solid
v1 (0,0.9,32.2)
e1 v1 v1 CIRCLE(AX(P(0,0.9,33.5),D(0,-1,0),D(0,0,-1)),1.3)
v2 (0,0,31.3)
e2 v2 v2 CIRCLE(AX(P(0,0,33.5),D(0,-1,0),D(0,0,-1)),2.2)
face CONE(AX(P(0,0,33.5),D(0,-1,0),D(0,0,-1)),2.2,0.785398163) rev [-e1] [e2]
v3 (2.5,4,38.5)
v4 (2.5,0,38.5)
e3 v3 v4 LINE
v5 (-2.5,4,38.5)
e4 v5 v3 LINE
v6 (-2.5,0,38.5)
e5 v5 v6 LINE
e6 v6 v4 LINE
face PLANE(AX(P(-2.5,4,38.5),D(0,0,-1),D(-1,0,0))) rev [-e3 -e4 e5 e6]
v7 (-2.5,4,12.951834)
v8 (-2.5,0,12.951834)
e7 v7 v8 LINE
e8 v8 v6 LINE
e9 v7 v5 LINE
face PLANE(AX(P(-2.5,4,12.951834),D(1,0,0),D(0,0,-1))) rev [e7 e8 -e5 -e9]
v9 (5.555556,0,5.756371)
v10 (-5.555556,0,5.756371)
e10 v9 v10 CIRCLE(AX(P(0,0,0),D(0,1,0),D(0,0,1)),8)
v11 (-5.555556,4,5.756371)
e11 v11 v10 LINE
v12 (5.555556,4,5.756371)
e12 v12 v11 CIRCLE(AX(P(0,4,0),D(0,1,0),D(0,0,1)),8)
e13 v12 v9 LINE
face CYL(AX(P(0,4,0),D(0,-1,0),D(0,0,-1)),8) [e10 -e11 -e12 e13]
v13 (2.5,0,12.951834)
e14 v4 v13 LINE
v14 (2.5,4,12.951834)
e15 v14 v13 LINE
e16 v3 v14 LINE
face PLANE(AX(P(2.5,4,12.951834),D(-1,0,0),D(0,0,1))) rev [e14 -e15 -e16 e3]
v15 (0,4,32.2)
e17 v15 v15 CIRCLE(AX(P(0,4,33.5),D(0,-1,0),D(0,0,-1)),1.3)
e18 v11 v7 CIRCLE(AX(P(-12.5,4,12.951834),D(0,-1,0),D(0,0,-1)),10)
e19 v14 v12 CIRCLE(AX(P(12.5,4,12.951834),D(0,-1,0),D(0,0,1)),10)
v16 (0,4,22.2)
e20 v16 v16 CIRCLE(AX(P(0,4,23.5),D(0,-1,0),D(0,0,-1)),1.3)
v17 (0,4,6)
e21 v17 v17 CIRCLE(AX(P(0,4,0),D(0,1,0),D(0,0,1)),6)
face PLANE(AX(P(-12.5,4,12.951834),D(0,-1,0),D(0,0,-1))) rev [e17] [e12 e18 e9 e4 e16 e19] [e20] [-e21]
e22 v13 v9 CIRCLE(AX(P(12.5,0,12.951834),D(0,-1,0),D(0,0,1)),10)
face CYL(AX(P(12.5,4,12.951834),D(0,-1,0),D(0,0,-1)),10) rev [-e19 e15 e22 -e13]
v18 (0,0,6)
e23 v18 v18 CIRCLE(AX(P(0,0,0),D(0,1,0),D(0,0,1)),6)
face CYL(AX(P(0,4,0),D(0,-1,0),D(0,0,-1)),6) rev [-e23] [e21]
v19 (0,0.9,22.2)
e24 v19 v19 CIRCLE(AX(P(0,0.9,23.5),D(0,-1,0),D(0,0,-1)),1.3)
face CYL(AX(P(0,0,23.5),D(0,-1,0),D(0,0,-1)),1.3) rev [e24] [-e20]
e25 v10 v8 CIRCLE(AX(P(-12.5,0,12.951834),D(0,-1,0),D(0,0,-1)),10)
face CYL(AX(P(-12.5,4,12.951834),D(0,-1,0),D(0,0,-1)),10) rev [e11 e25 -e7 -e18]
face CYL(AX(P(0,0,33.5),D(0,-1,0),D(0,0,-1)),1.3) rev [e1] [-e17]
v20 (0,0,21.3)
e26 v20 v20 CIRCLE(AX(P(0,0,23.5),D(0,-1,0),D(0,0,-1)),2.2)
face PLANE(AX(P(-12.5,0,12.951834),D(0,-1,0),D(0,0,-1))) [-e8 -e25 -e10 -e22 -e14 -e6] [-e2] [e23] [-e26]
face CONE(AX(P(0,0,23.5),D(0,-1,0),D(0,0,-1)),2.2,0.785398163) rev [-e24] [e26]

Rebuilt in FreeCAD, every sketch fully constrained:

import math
import FreeCAD as App
import Part
import Sketcher

V = App.Vector

doc = App.newDocument("Part")
body = doc.addObject("PartDesign::Body", "Body")

# Sketch on XZ plane
sketch1 = body.newObject("Sketcher::SketchObject", "Sketch")
sketch1.AttachmentSupport = (doc.getObject("XZ_Plane"), [""])
sketch1.MapMode = "FlatFace"
sketch1.addGeometry(Part.LineSegment(V(-2, 13, 0), V(-2, 38, 0)), False)
sketch1.addGeometry(Part.LineSegment(V(-2, 38, 0), V(2, 38, 0)), False)
sketch1.addGeometry(Part.LineSegment(V(2, 38, 0), V(2, 13, 0)), False)
sketch1.addGeometry(Part.ArcOfCircle(Part.Circle(V(12, 13, 0), V(0, 0, 1), 10), math.radians(180), math.radians(226)), False)
sketch1.addGeometry(Part.ArcOfCircle(Part.Circle(V(0, 0, 0), V(0, 0, 1), 8), math.radians(134), math.radians(406)), False)
sketch1.addGeometry(Part.ArcOfCircle(Part.Circle(V(-12, 13, 0), V(0, 0, 1), 10), math.radians(-46), math.radians(0)), False)
sketch1.addGeometry(Part.Circle(V(0, 0, 0), V(0, 0, 1), 6), False)
sketch1.addConstraint(Sketcher.Constraint("Coincident", 0, 2, 1, 1))
sketch1.addConstraint(Sketcher.Constraint("Coincident", 1, 2, 2, 1))
sketch1.addConstraint(Sketcher.Constraint("Tangent", 2, 2, 3, 1))
sketch1.addConstraint(Sketcher.Constraint("Tangent", 3, 2, 4, 2))
sketch1.addConstraint(Sketcher.Constraint("Tangent", 4, 1, 5, 1))
sketch1.addConstraint(Sketcher.Constraint("Tangent", 5, 2, 0, 1))
sketch1.addConstraint(Sketcher.Constraint("Vertical", 0))
sketch1.addConstraint(Sketcher.Constraint("Horizontal", 1))
sketch1.addConstraint(Sketcher.Constraint("Vertical", 2))
sketch1.addConstraint(Sketcher.Constraint("Coincident", 4, 3, -1, 1))
sketch1.addConstraint(Sketcher.Constraint("Coincident", 6, 3, -1, 1))
sketch1.addConstraint(Sketcher.Constraint("Equal", 3, 5))
sketch1.addConstraint(Sketcher.Constraint("Horizontal", 3, 3, 5, 3))
sketch1.addConstraint(Sketcher.Constraint("Diameter", 6, 12.0))
sketch1.addConstraint(Sketcher.Constraint("Radius", 3, 10.0))
sketch1.addConstraint(Sketcher.Constraint("Radius", 4, 8.0))
sketch1.addConstraint(Sketcher.Constraint("DistanceX", 1, 1, 1, 2, 5.0))
sketch1.addConstraint(Sketcher.Constraint("DistanceY", -1, 1, 0, 2, 38.5))
pad1 = body.newObject("PartDesign::Pad", "Pad")
pad1.Profile = sketch1
pad1.Length = 4
pad1.Reversed = True

# Sketch on XZ plane
sketch2 = body.newObject("Sketcher::SketchObject", "Sketch001")
sketch2.AttachmentSupport = (doc.getObject("XZ_Plane"), [""])
sketch2.MapMode = "FlatFace"
sketch2.addGeometry(Part.Circle(V(0, 23.5, 0), V(0, 0, 1), 1.3), False)
sketch2.addGeometry(Part.Circle(V(0, 33.5, 0), V(0, 0, 1), 1.3), False)
sketch2.addConstraint(Sketcher.Constraint("Equal", 0, 1))
sketch2.addConstraint(Sketcher.Constraint("PointOnObject", 0, 3, -2))
sketch2.addConstraint(Sketcher.Constraint("PointOnObject", 1, 3, -2))
sketch2.addConstraint(Sketcher.Constraint("Diameter", 0, 2.6))
sketch2.addConstraint(Sketcher.Constraint("DistanceY", 0, 3, 1, 3, 10.0))
sketch2.addConstraint(Sketcher.Constraint("DistanceY", -1, 1, 0, 3, 23.5))
doc.recompute()
hole = body.newObject("PartDesign::Hole", "Hole")
hole.Profile = sketch2
hole.ThreadType = "None"
hole.Diameter = 2.6
hole.DepthType = "ThroughAll"
hole.HoleCutType = "Countersink"
hole.HoleCutDiameter = 4.4
hole.HoleCutCountersinkAngle = 90

doc.recompute()
